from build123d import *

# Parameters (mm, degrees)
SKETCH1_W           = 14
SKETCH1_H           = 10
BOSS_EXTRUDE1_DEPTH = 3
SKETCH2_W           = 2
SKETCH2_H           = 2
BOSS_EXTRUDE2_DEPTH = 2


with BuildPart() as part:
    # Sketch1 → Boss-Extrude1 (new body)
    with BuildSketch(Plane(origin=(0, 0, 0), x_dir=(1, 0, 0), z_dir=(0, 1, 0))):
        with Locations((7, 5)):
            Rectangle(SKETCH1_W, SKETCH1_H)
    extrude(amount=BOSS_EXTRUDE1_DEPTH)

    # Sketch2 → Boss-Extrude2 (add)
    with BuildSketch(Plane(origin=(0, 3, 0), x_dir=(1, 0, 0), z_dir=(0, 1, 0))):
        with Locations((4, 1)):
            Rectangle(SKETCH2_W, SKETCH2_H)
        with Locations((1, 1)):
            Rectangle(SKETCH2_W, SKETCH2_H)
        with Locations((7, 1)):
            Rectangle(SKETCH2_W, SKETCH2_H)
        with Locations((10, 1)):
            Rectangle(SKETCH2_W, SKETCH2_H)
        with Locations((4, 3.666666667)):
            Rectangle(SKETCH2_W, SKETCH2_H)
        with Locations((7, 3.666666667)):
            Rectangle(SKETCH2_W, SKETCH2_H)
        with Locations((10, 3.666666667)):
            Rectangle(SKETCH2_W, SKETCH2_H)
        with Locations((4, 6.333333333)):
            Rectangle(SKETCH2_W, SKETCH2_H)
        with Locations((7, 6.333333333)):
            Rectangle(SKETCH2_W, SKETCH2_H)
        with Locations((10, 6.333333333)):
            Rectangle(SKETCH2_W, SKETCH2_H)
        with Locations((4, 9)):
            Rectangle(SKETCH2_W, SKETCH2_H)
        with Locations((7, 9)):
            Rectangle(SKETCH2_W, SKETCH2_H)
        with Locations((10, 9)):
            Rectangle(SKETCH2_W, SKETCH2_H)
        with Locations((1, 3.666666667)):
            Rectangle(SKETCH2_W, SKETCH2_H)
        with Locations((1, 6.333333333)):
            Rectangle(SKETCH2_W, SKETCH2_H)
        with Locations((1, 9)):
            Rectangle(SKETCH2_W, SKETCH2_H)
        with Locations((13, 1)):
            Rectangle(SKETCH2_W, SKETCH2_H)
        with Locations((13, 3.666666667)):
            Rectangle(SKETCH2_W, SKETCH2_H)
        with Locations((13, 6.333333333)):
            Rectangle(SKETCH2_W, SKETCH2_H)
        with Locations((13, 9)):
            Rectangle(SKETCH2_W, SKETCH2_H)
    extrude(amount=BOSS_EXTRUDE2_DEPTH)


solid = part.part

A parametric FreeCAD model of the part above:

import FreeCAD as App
import Part
import Sketcher
from FreeCAD import Vector

doc = App.newDocument("Part")
body = doc.addObject("PartDesign::Body", "Body")

# Sketch on XZ plane
sketch1 = body.newObject("Sketcher::SketchObject", "Sketch")
sketch1.AttachmentSupport = (doc.getObject("XZ_Plane"), [""])
sketch1.MapMode = "FlatFace"
sketch1.addGeometry(Part.LineSegment(Vector(0, -10, 0), Vector(0, 0, 0)), False)
sketch1.addGeometry(Part.LineSegment(Vector(0, 0, 0), Vector(14, 0, 0)), False)
sketch1.addGeometry(Part.LineSegment(Vector(14, 0, 0), Vector(14, -10, 0)), False)
sketch1.addGeometry(Part.LineSegment(Vector(14, -10, 0), Vector(0, -10, 0)), False)
sketch1.addConstraint(Sketcher.Constraint("Coincident", 0, 2, 1, 1))
sketch1.addConstraint(Sketcher.Constraint("Coincident", 1, 2, 2, 1))
sketch1.addConstraint(Sketcher.Constraint("Coincident", 2, 2, 3, 1))
sketch1.addConstraint(Sketcher.Constraint("Coincident", 3, 2, 0, 1))
sketch1.addConstraint(Sketcher.Constraint("Vertical", 0))
sketch1.addConstraint(Sketcher.Constraint("Horizontal", 1))
sketch1.addConstraint(Sketcher.Constraint("Vertical", 2))
sketch1.addConstraint(Sketcher.Constraint("Horizontal", 3))
sketch1.addConstraint(Sketcher.Constraint("Coincident", 0, 2, -1, 1))
sketch1.addConstraint(Sketcher.Constraint("DistanceX", 1, 1, 1, 2, 14.0))
sketch1.addConstraint(Sketcher.Constraint("DistanceY", 0, 1, 0, 2, 10.0))
pad1 = body.newObject("PartDesign::Pad", "Pad")
pad1.Profile = sketch1
pad1.Length = 3
pad1.Reversed = True

# Sketch on XZ plane
sketch2 = body.newObject("Sketcher::SketchObject", "Sketch001")
sketch2.AttachmentSupport = (doc.getObject("XZ_Plane"), [""])
sketch2.MapMode = "FlatFace"
sketch2.AttachmentOffset = App.Placement(Vector(0, 0, -3), App.Rotation())
sketch2.addGeometry(Part.LineSegment(Vector(3, -2, 0), Vector(3, 0, 0)), False)
sketch2.addGeometry(Part.LineSegment(Vector(3, 0, 0), Vector(5, 0, 0)), False)
sketch2.addGeometry(Part.LineSegment(Vector(5, 0, 0), Vector(5, -2, 0)), False)
sketch2.addGeometry(Part.LineSegment(Vector(5, -2, 0), Vector(3, -2, 0)), False)
sketch2.addGeometry(Part.LineSegment(Vector(0, -2, 0), Vector(0, 0, 0)), False)
sketch2.addGeometry(Part.LineSegment(Vector(0, 0, 0), Vector(2, 0, 0)), False)
sketch2.addGeometry(Part.LineSegment(Vector(2, 0, 0), Vector(2, -2, 0)), False)
sketch2.addGeometry(Part.LineSegment(Vector(2, -2, 0), Vector(0, -2, 0)), False)
sketch2.addGeometry(Part.LineSegment(Vector(6, -2, 0), Vector(6, 0, 0)), False)
sketch2.addGeometry(Part.LineSegment(Vector(6, 0, 0), Vector(8, 0, 0)), False)
sketch2.addGeometry(Part.LineSegment(Vector(8, 0, 0), Vector(8, -2, 0)), False)
sketch2.addGeometry(Part.LineSegment(Vector(8, -2, 0), Vector(6, -2, 0)), False)
sketch2.addGeometry(Part.LineSegment(Vector(9, -2, 0), Vector(9, 0, 0)), False)
sketch2.addGeometry(Part.LineSegment(Vector(9, 0, 0), Vector(11, 0, 0)), False)
sketch2.addGeometry(Part.LineSegment(Vector(11, 0, 0), Vector(11, -2, 0)), False)
sketch2.addGeometry(Part.LineSegment(Vector(11, -2, 0), Vector(9, -2, 0)), False)
sketch2.addGeometry(Part.LineSegment(Vector(3, -4.7, 0), Vector(3, -2.7, 0)), False)
sketch2.addGeometry(Part.LineSegment(Vector(3, -2.7, 0), Vector(5, -2.7, 0)), False)
sketch2.addGeometry(Part.LineSegment(Vector(5, -2.7, 0), Vector(5, -4.7, 0)), False)
sketch2.addGeometry(Part.LineSegment(Vector(5, -4.7, 0), Vector(3, -4.7, 0)), False)
sketch2.addGeometry(Part.LineSegment(Vector(6, -4.7, 0), Vector(6, -2.7, 0)), False)
sketch2.addGeometry(Part.LineSegment(Vector(6, -2.7, 0), Vector(8, -2.7, 0)), False)
sketch2.addGeometry(Part.LineSegment(Vector(8, -2.7, 0), Vector(8, -4.7, 0)), False)
sketch2.addGeometry(Part.LineSegment(Vector(8, -4.7, 0), Vector(6, -4.7, 0)), False)
sketch2.addGeometry(Part.LineSegment(Vector(9, -4.7, 0), Vector(9, -2.7, 0)), False)
sketch2.addGeometry(Part.LineSegment(Vector(9, -2.7, 0), Vector(11, -2.7, 0)), False)
sketch2.addGeometry(Part.LineSegment(Vector(11, -2.7, 0), Vector(11, -4.7, 0)), False)
sketch2.addGeometry(Part.LineSegment(Vector(11, -4.7, 0), Vector(9, -4.7, 0)), False)
sketch2.addGeometry(Part.LineSegment(Vector(3, -7.3, 0), Vector(3, -5.3, 0)), False)
sketch2.addGeometry(Part.LineSegment(Vector(3, -5.3, 0), Vector(5, -5.3, 0)), False)
sketch2.addGeometry(Part.LineSegment(Vector(5, -5.3, 0), Vector(5, -7.3, 0)), False)
sketch2.addGeometry(Part.LineSegment(Vector(5, -7.3, 0), Vector(3, -7.3, 0)), False)
sketch2.addGeometry(Part.LineSegment(Vector(6, -7.3, 0), Vector(6, -5.3, 0)), False)
sketch2.addGeometry(Part.LineSegment(Vector(6, -5.3, 0), Vector(8, -5.3, 0)), False)
sketch2.addGeometry(Part.LineSegment(Vector(8, -5.3, 0), Vector(8, -7.3, 0)), False)
sketch2.addGeometry(Part.LineSegment(Vector(8, -7.3, 0), Vector(6, -7.3, 0)), False)
sketch2.addGeometry(Part.LineSegment(Vector(9, -7.3, 0), Vector(9, -5.3, 0)), False)
sketch2.addGeometry(Part.LineSegment(Vector(9, -5.3, 0), Vector(11, -5.3, 0)), False)
sketch2.addGeometry(Part.LineSegment(Vector(11, -5.3, 0), Vector(11, -7.3, 0)), False)
sketch2.addGeometry(Part.LineSegment(Vector(11, -7.3, 0), Vector(9, -7.3, 0)), False)
sketch2.addGeometry(Part.LineSegment(Vector(3, -10, 0), Vector(3, -8, 0)), False)
sketch2.addGeometry(Part.LineSegment(Vector(3, -8, 0), Vector(5, -8, 0)), False)
sketch2.addGeometry(Part.LineSegment(Vector(5, -8, 0), Vector(5, -10, 0)), False)
sketch2.addGeometry(Part.LineSegment(Vector(5, -10, 0), Vector(3, -10, 0)), False)
sketch2.addGeometry(Part.LineSegment(Vector(6, -10, 0), Vector(6, -8, 0)), False)
sketch2.addGeometry(Part.LineSegment(Vector(6, -8, 0), Vector(8, -8, 0)), False)
sketch2.addGeometry(Part.LineSegment(Vector(8, -8, 0), Vector(8, -10, 0)), False)
sketch2.addGeometry(Part.LineSegment(Vector(8, -10, 0), Vector(6, -10, 0)), False)
sketch2.addGeometry(Part.LineSegment(Vector(9, -10, 0), Vector(9, -8, 0)), False)
sketch2.addGeometry(Part.LineSegment(Vector(9, -8, 0), Vector(11, -8, 0)), False)
sketch2.addGeometry(Part.LineSegment(Vector(11, -8, 0), Vector(11, -10, 0)), False)
sketch2.addGeometry(Part.LineSegment(Vector(11, -10, 0), Vector(9, -10, 0)), False)
sketch2.addGeometry(Part.LineSegment(Vector(0, -4.7, 0), Vector(0, -2.7, 0)), False)
sketch2.addGeometry(Part.LineSegment(Vector(0, -2.7, 0), Vector(2, -2.7, 0)), False)
sketch2.addGeometry(Part.LineSegment(Vector(2, -2.7, 0), Vector(2, -4.7, 0)), False)
sketch2.addGeometry(Part.LineSegment(Vector(2, -4.7, 0), Vector(0, -4.7, 0)), False)
sketch2.addGeometry(Part.LineSegment(Vector(0, -7.3, 0), Vector(0, -5.3, 0)), False)
sketch2.addGeometry(Part.LineSegment(Vector(0, -5.3, 0), Vector(2, -5.3, 0)), False)
sketch2.addGeometry(Part.LineSegment(Vector(2, -5.3, 0), Vector(2, -7.3, 0)), False)
sketch2.addGeometry(Part.LineSegment(Vector(2, -7.3, 0), Vector(0, -7.3, 0)), False)
sketch2.addGeometry(Part.LineSegment(Vector(0, -10, 0), Vector(0, -8, 0)), False)
sketch2.addGeometry(Part.LineSegment(Vector(0, -8, 0), Vector(2, -8, 0)), False)
sketch2.addGeometry(Part.LineSegment(Vector(2, -8, 0), Vector(2, -10, 0)), False)
sketch2.addGeometry(Part.LineSegment(Vector(2, -10, 0), Vector(0, -10, 0)), False)
sketch2.addGeometry(Part.LineSegment(Vector(12, -2, 0), Vector(12, 0, 0)), False)
sketch2.addGeometry(Part.LineSegment(Vector(12, 0, 0), Vector(14, 0, 0)), False)
sketch2.addGeometry(Part.LineSegment(Vector(14, 0, 0), Vector(14, -2, 0)), False)
sketch2.addGeometry(Part.LineSegment(Vector(14, -2, 0), Vector(12, -2, 0)), False)
sketch2.addGeometry(Part.LineSegment(Vector(12, -4.7, 0), Vector(12, -2.7, 0)), False)
sketch2.addGeometry(Part.LineSegment(Vector(12, -2.7, 0), Vector(14, -2.7, 0)), False)
sketch2.addGeometry(Part.LineSegment(Vector(14, -2.7, 0), Vector(14, -4.7, 0)), False)
sketch2.addGeometry(Part.LineSegment(Vector(14, -4.7, 0), Vector(12, -4.7, 0)), False)
sketch2.addGeometry(Part.LineSegment(Vector(12, -7.3, 0), Vector(12, -5.3, 0)), False)
sketch2.addGeometry(Part.LineSegment(Vector(12, -5.3, 0), Vector(14, -5.3, 0)), False)
sketch2.addGeometry(Part.LineSegment(Vector(14, -5.3, 0), Vector(14, -7.3, 0)), False)
sketch2.addGeometry(Part.LineSegment(Vector(14, -7.3, 0), Vector(12, -7.3, 0)), False)
sketch2.addGeometry(Part.LineSegment(Vector(12, -10, 0), Vector(12, -8, 0)), False)
sketch2.addGeometry(Part.LineSegment(Vector(12, -8, 0), Vector(14, -8, 0)), False)
sketch2.addGeometry(Part.LineSegment(Vector(14, -8, 0), Vector(14, -10, 0)), False)
sketch2.addGeometry(Part.LineSegment(Vector(14, -10, 0), Vector(12, -10, 0)), False)
sketch2.addConstraint(Sketcher.Constraint("Coincident", 0, 2, 1, 1))
sketch2.addConstraint(Sketcher.Constraint("Coincident", 1, 2, 2, 1))
sketch2.addConstraint(Sketcher.Constraint("Coincident", 2, 2, 3, 1))
sketch2.addConstraint(Sketcher.Constraint("Coincident", 3, 2, 0, 1))
sketch2.addConstraint(Sketcher.Constraint("Coincident", 4, 2, 5, 1))
sketch2.addConstraint(Sketcher.Constraint("Coincident", 5, 2, 6, 1))
sketch2.addConstraint(Sketcher.Constraint("Coincident", 6, 2, 7, 1))
sketch2.addConstraint(Sketcher.Constraint("Coincident", 7, 2, 4, 1))
sketch2.addConstraint(Sketcher.Constraint("Coincident", 8, 2, 9, 1))
sketch2.addConstraint(Sketcher.Constraint("Coincident", 9, 2, 10, 1))
sketch2.addConstraint(Sketcher.Constraint("Coincident", 10, 2, 11, 1))
sketch2.addConstraint(Sketcher.Constraint("Coincident", 11, 2, 8, 1))
sketch2.addConstraint(Sketcher.Constraint("Coincident", 12, 2, 13, 1))
sketch2.addConstraint(Sketcher.Constraint("Coincident", 13, 2, 14, 1))
sketch2.addConstraint(Sketcher.Constraint("Coincident", 14, 2, 15, 1))
sketch2.addConstraint(Sketcher.Constraint("Coincident", 15, 2, 12, 1))
sketch2.addConstraint(Sketcher.Constraint("Coincident", 16, 2, 17, 1))
sketch2.addConstraint(Sketcher.Constraint("Coincident", 17, 2, 18, 1))
sketch2.addConstraint(Sketcher.Constraint("Coincident", 18, 2, 19, 1))
sketch2.addConstraint(Sketcher.Constraint("Coincident", 19, 2, 16, 1))
sketch2.addConstraint(Sketcher.Constraint("Coincident", 20, 2, 21, 1))
sketch2.addConstraint(Sketcher.Constraint("Coincident", 21, 2, 22, 1))
sketch2.addConstraint(Sketcher.Constraint("Coincident", 22, 2, 23, 1))
sketch2.addConstraint(Sketcher.Constraint("Coincident", 23, 2, 20, 1))
sketch2.addConstraint(Sketcher.Constraint("Coincident", 24, 2, 25, 1))
sketch2.addConstraint(Sketcher.Constraint("Coincident", 25, 2, 26, 1))
sketch2.addConstraint(Sketcher.Constraint("Coincident", 26, 2, 27, 1))
sketch2.addConstraint(Sketcher.Constraint("Coincident", 27, 2, 24, 1))
sketch2.addConstraint(Sketcher.Constraint("Coincident", 28, 2, 29, 1))
sketch2.addConstraint(Sketcher.Constraint("Coincident", 29, 2, 30, 1))
sketch2.addConstraint(Sketcher.Constraint("Coincident", 30, 2, 31, 1))
sketch2.addConstraint(Sketcher.Constraint("Coincident", 31, 2, 28, 1))
sketch2.addConstraint(Sketcher.Constraint("Coincident", 32, 2, 33, 1))
sketch2.addConstraint(Sketcher.Constraint("Coincident", 33, 2, 34, 1))
sketch2.addConstraint(Sketcher.Constraint("Coincident", 34, 2, 35, 1))
sketch2.addConstraint(Sketcher.Constraint("Coincident", 35, 2, 32, 1))
sketch2.addConstraint(Sketcher.Constraint("Coincident", 36, 2, 37, 1))
sketch2.addConstraint(Sketcher.Constraint("Coincident", 37, 2, 38, 1))
sketch2.addConstraint(Sketcher.Constraint("Coincident", 38, 2, 39, 1))
sketch2.addConstraint(Sketcher.Constraint("Coincident", 39, 2, 36, 1))
sketch2.addConstraint(Sketcher.Constraint("Coincident", 40, 2, 41, 1))
sketch2.addConstraint(Sketcher.Constraint("Coincident", 41, 2, 42, 1))
sketch2.addConstraint(Sketcher.Constraint("Coincident", 42, 2, 43, 1))
sketch2.addConstraint(Sketcher.Constraint("Coincident", 43, 2, 40, 1))
sketch2.addConstraint(Sketcher.Constraint("Coincident", 44, 2, 45, 1))
sketch2.addConstraint(Sketcher.Constraint("Coincident", 45, 2, 46, 1))
sketch2.addConstraint(Sketcher.Constraint("Coincident", 46, 2, 47, 1))
sketch2.addConstraint(Sketcher.Constraint("Coincident", 47, 2, 44, 1))
sketch2.addConstraint(Sketcher.Constraint("Coincident", 48, 2, 49, 1))
sketch2.addConstraint(Sketcher.Constraint("Coincident", 49, 2, 50, 1))
sketch2.addConstraint(Sketcher.Constraint("Coincident", 50, 2, 51, 1))
sketch2.addConstraint(Sketcher.Constraint("Coincident", 51, 2, 48, 1))
sketch2.addConstraint(Sketcher.Constraint("Coincident", 52, 2, 53, 1))
sketch2.addConstraint(Sketcher.Constraint("Coincident", 53, 2, 54, 1))
sketch2.addConstraint(Sketcher.Constraint("Coincident", 54, 2, 55, 1))
sketch2.addConstraint(Sketcher.Constraint("Coincident", 55, 2, 52, 1))
sketch2.addConstraint(Sketcher.Constraint("Coincident", 56, 2, 57, 1))
sketch2.addConstraint(Sketcher.Constraint("Coincident", 57, 2, 58, 1))
sketch2.addConstraint(Sketcher.Constraint("Coincident", 58, 2, 59, 1))
sketch2.addConstraint(Sketcher.Constraint("Coincident", 59, 2, 56, 1))
sketch2.addConstraint(Sketcher.Constraint("Coincident", 60, 2, 61, 1))
sketch2.addConstraint(Sketcher.Constraint("Coincident", 61, 2, 62, 1))
sketch2.addConstraint(Sketcher.Constraint("Coincident", 62, 2, 63, 1))
sketch2.addConstraint(Sketcher.Constraint("Coincident", 63, 2, 60, 1))
sketch2.addConstraint(Sketcher.Constraint("Coincident", 64, 2, 65, 1))
sketch2.addConstraint(Sketcher.Constraint("Coincident", 65, 2, 66, 1))
sketch2.addConstraint(Sketcher.Constraint("Coincident", 66, 2, 67, 1))
sketch2.addConstraint(Sketcher.Constraint("Coincident", 67, 2, 64, 1))
sketch2.addConstraint(Sketcher.Constraint("Coincident", 68, 2, 69, 1))
sketch2.addConstraint(Sketcher.Constraint("Coincident", 69, 2, 70, 1))
sketch2.addConstraint(Sketcher.Constraint("Coincident", 70, 2, 71, 1))
sketch2.addConstraint(Sketcher.Constraint("Coincident", 71, 2, 68, 1))
sketch2.addConstraint(Sketcher.Constraint("Coincident", 72, 2, 73, 1))
sketch2.addConstraint(Sketcher.Constraint("Coincident", 73, 2, 74, 1))
sketch2.addConstraint(Sketcher.Constraint("Coincident", 74, 2, 75, 1))
sketch2.addConstraint(Sketcher.Constraint("Coincident", 75, 2, 72, 1))
sketch2.addConstraint(Sketcher.Constraint("Coincident", 76, 2, 77, 1))
sketch2.addConstraint(Sketcher.Constraint("Coincident", 77, 2, 78, 1))
sketch2.addConstraint(Sketcher.Constraint("Coincident", 78, 2, 79, 1))
sketch2.addConstraint(Sketcher.Constraint("Coincident", 79, 2, 76, 1))
sketch2.addConstraint(Sketcher.Constraint("Vertical", 0))
sketch2.addConstraint(Sketcher.Constraint("Horizontal", 1))
sketch2.addConstraint(Sketcher.Constraint("Vertical", 2))
sketch2.addConstraint(Sketcher.Constraint("Horizontal", 3))
sketch2.addConstraint(Sketcher.Constraint("Vertical", 4))
sketch2.addConstraint(Sketcher.Constraint("Horizontal", 5))
sketch2.addConstraint(Sketcher.Constraint("Vertical", 6))
sketch2.addConstraint(Sketcher.Constraint("Horizontal", 7))
sketch2.addConstraint(Sketcher.Constraint("Vertical", 8))
sketch2.addConstraint(Sketcher.Constraint("Horizontal", 9))
sketch2.addConstraint(Sketcher.Constraint("Vertical", 10))
sketch2.addConstraint(Sketcher.Constraint("Horizontal", 11))
sketch2.addConstraint(Sketcher.Constraint("Vertical", 12))
sketch2.addConstraint(Sketcher.Constraint("Horizontal", 13))
sketch2.addConstraint(Sketcher.Constraint("Vertical", 14))
sketch2.addConstraint(Sketcher.Constraint("Horizontal", 15))
sketch2.addConstraint(Sketcher.Constraint("Vertical", 16))
sketch2.addConstraint(Sketcher.Constraint("Horizontal", 17))
sketch2.addConstraint(Sketcher.Constraint("Vertical", 18))
sketch2.addConstraint(Sketcher.Constraint("Horizontal", 19))
sketch2.addConstraint(Sketcher.Constraint("Vertical", 20))
sketch2.addConstraint(Sketcher.Constraint("Horizontal", 21))
sketch2.addConstraint(Sketcher.Constraint("Vertical", 22))
sketch2.addConstraint(Sketcher.Constraint("Horizontal", 23))
sketch2.addConstraint(Sketcher.Constraint("Vertical", 24))
sketch2.addConstraint(Sketcher.Constraint("Horizontal", 25))
sketch2.addConstraint(Sketcher.Constraint("Vertical", 26))
sketch2.addConstraint(Sketcher.Constraint("Horizontal", 27))
sketch2.addConstraint(Sketcher.Constraint("Vertical", 28))
sketch2.addConstraint(Sketcher.Constraint("Horizontal", 29))
sketch2.addConstraint(Sketcher.Constraint("Vertical", 30))
sketch2.addConstraint(Sketcher.Constraint("Horizontal", 31))
sketch2.addConstraint(Sketcher.Constraint("Vertical", 32))
sketch2.addConstraint(Sketcher.Constraint("Horizontal", 33))
sketch2.addConstraint(Sketcher.Constraint("Vertical", 34))
sketch2.addConstraint(Sketcher.Constraint("Horizontal", 35))
sketch2.addConstraint(Sketcher.Constraint("Vertical", 36))
sketch2.addConstraint(Sketcher.Constraint("Horizontal", 37))
sketch2.addConstraint(Sketcher.Constraint("Vertical", 38))
sketch2.addConstraint(Sketcher.Constraint("Horizontal", 39))
sketch2.addConstraint(Sketcher.Constraint("Vertical", 40))
sketch2.addConstraint(Sketcher.Constraint("Horizontal", 41))
sketch2.addConstraint(Sketcher.Constraint("Vertical", 42))
sketch2.addConstraint(Sketcher.Constraint("Horizontal", 43))
sketch2.addConstraint(Sketcher.Constraint("Vertical", 44))
sketch2.addConstraint(Sketcher.Constraint("Horizontal", 45))
sketch2.addConstraint(Sketcher.Constraint("Vertical", 46))
sketch2.addConstraint(Sketcher.Constraint("Horizontal", 47))
sketch2.addConstraint(Sketcher.Constraint("Vertical", 48))
sketch2.addConstraint(Sketcher.Constraint("Horizontal", 49))
sketch2.addConstraint(Sketcher.Constraint("Vertical", 50))
sketch2.addConstraint(Sketcher.Constraint("Horizontal", 51))
sketch2.addConstraint(Sketcher.Constraint("Vertical", 52))
sketch2.addConstraint(Sketcher.Constraint("Horizontal", 53))
sketch2.addConstraint(Sketcher.Constraint("Vertical", 54))
sketch2.addConstraint(Sketcher.Constraint("Horizontal", 55))
sketch2.addConstraint(Sketcher.Constraint("Vertical", 56))
sketch2.addConstraint(Sketcher.Constraint("Horizontal", 57))
sketch2.addConstraint(Sketcher.Constraint("Vertical", 58))
sketch2.addConstraint(Sketcher.Constraint("Horizontal", 59))
sketch2.addConstraint(Sketcher.Constraint("Vertical", 60))
sketch2.addConstraint(Sketcher.Constraint("Horizontal", 61))
sketch2.addConstraint(Sketcher.Constraint("Vertical", 62))
sketch2.addConstraint(Sketcher.Constraint("Horizontal", 63))
sketch2.addConstraint(Sketcher.Constraint("Vertical", 64))
sketch2.addConstraint(Sketcher.Constraint("Horizontal", 65))
sketch2.addConstraint(Sketcher.Constraint("Vertical", 66))
sketch2.addConstraint(Sketcher.Constraint("Horizontal", 67))
sketch2.addConstraint(Sketcher.Constraint("Vertical", 68))
sketch2.addConstraint(Sketcher.Constraint("Horizontal", 69))
sketch2.addConstraint(Sketcher.Constraint("Vertical", 70))
sketch2.addConstraint(Sketcher.Constraint("Horizontal", 71))
sketch2.addConstraint(Sketcher.Constraint("Vertical", 72))
sketch2.addConstraint(Sketcher.Constraint("Horizontal", 73))
sketch2.addConstraint(Sketcher.Constraint("Vertical", 74))
sketch2.addConstraint(Sketcher.Constraint("Horizontal", 75))
sketch2.addConstraint(Sketcher.Constraint("Vertical", 76))
sketch2.addConstraint(Sketcher.Constraint("Horizontal", 77))
sketch2.addConstraint(Sketcher.Constraint("Vertical", 78))
sketch2.addConstraint(Sketcher.Constraint("Horizontal", 79))
sketch2.addConstraint(Sketcher.Constraint("Coincident", 4, 2, -1, 1))
sketch2.addConstraint(Sketcher.Constraint("PointOnObject", 0, 2, -1))
sketch2.addConstraint(Sketcher.Constraint("PointOnObject", 8, 2, -1))
sketch2.addConstraint(Sketcher.Constraint("PointOnObject", 12, 2, -1))
sketch2.addConstraint(Sketcher.Constraint("PointOnObject", 52, 2, -2))
sketch2.addConstraint(Sketcher.Constraint("PointOnObject", 56, 2, -2))
sketch2.addConstraint(Sketcher.Constraint("PointOnObject", 60, 2, -2))
sketch2.addConstraint(Sketcher.Constraint("PointOnObject", 64, 2, -1))
sketch2.addConstraint(Sketcher.Constraint("Horizontal", 3, 2, 6, 2))
sketch2.addConstraint(Sketcher.Constraint("Horizontal", 7, 2, 10, 2))
sketch2.addConstraint(Sketcher.Constraint("Horizontal", 11, 2, 14, 2))
sketch2.addConstraint(Sketcher.Constraint("Horizontal", 17, 2, 20, 2))
sketch2.addConstraint(Sketcher.Constraint("Horizontal", 19, 2, 22, 2))
sketch2.addConstraint(Sketcher.Constraint("Horizontal", 21, 2, 24, 2))
sketch2.addConstraint(Sketcher.Constraint("Horizontal", 23, 2, 26, 2))
sketch2.addConstraint(Sketcher.Constraint("Horizontal", 29, 2, 32, 2))
sketch2.addConstraint(Sketcher.Constraint("Horizontal", 31, 2, 34, 2))
sketch2.addConstraint(Sketcher.Constraint("Horizontal", 33, 2, 36, 2))
sketch2.addConstraint(Sketcher.Constraint("Horizontal", 35, 2, 38, 2))
sketch2.addConstraint(Sketcher.Constraint("Horizontal", 41, 2, 44, 2))
sketch2.addConstraint(Sketcher.Constraint("Horizontal", 43, 2, 46, 2))
sketch2.addConstraint(Sketcher.Constraint("Horizontal", 45, 2, 48, 2))
sketch2.addConstraint(Sketcher.Constraint("Horizontal", 47, 2, 50, 2))
sketch2.addConstraint(Sketcher.Constraint("Horizontal", 25, 2, 52, 2))
sketch2.addConstraint(Sketcher.Constraint("Horizontal", 27, 2, 54, 2))
sketch2.addConstraint(Sketcher.Constraint("Horizontal", 37, 2, 56, 2))
sketch2.addConstraint(Sketcher.Constraint("Horizontal", 39, 2, 58, 2))
sketch2.addConstraint(Sketcher.Constraint("Horizontal", 49, 2, 60, 2))
sketch2.addConstraint(Sketcher.Constraint("Horizontal", 51, 2, 62, 2))
sketch2.addConstraint(Sketcher.Constraint("Horizontal", 15, 2, 66, 2))
sketch2.addConstraint(Sketcher.Constraint("Horizontal", 53, 2, 68, 2))
sketch2.addConstraint(Sketcher.Constraint("Horizontal", 55, 2, 70, 2))
sketch2.addConstraint(Sketcher.Constraint("Horizontal", 57, 2, 72, 2))
sketch2.addConstraint(Sketcher.Constraint("Horizontal", 59, 2, 74, 2))
sketch2.addConstraint(Sketcher.Constraint("Horizontal", 61, 2, 76, 2))
sketch2.addConstraint(Sketcher.Constraint("Horizontal", 63, 2, 78, 2))
sketch2.addConstraint(Sketcher.Constraint("Vertical", 3, 2, 16, 2))
sketch2.addConstraint(Sketcher.Constraint("Vertical", 2, 2, 17, 2))
sketch2.addConstraint(Sketcher.Constraint("Vertical", 11, 2, 20, 2))
sketch2.addConstraint(Sketcher.Constraint("Vertical", 10, 2, 21, 2))
sketch2.addConstraint(Sketcher.Constraint("Vertical", 15, 2, 24, 2))
sketch2.addConstraint(Sketcher.Constraint("Vertical", 14, 2, 25, 2))
sketch2.addConstraint(Sketcher.Constraint("Vertical", 19, 2, 28, 2))
sketch2.addConstraint(Sketcher.Constraint("Vertical", 18, 2, 29, 2))
sketch2.addConstraint(Sketcher.Constraint("Vertical", 23, 2, 32, 2))
sketch2.addConstraint(Sketcher.Constraint("Vertical", 22, 2, 33, 2))
sketch2.addConstraint(Sketcher.Constraint("Vertical", 27, 2, 36, 2))
sketch2.addConstraint(Sketcher.Constraint("Vertical", 26, 2, 37, 2))
sketch2.addConstraint(Sketcher.Constraint("Vertical", 31, 2, 40, 2))
sketch2.addConstraint(Sketcher.Constraint("Vertical", 30, 2, 41, 2))
sketch2.addConstraint(Sketcher.Constraint("Vertical", 35, 2, 44, 2))
sketch2.addConstraint(Sketcher.Constraint("Vertical", 34, 2, 45, 2))
sketch2.addConstraint(Sketcher.Constraint("Vertical", 39, 2, 48, 2))
sketch2.addConstraint(Sketcher.Constraint("Vertical", 38, 2, 49, 2))
sketch2.addConstraint(Sketcher.Constraint("Vertical", 6, 2, 53, 2))
sketch2.addConstraint(Sketcher.Constraint("Vertical", 54, 2, 57, 2))
sketch2.addConstraint(Sketcher.Constraint("Vertical", 58, 2, 61, 2))
sketch2.addConstraint(Sketcher.Constraint("Vertical", 67, 2, 68, 2))
sketch2.addConstraint(Sketcher.Constraint("Vertical", 66, 2, 69, 2))
sketch2.addConstraint(Sketcher.Constraint("Vertical", 71, 2, 72, 2))
sketch2.addConstraint(Sketcher.Constraint("Vertical", 70, 2, 73, 2))
sketch2.addConstraint(Sketcher.Constraint("Vertical", 75, 2, 76, 2))
sketch2.addConstraint(Sketcher.Constraint("Vertical", 74, 2, 77, 2))
sketch2.addConstraint(Sketcher.Constraint("Equal", 3, 5))
sketch2.addConstraint(Sketcher.Constraint("Equal", 7, 9))
sketch2.addConstraint(Sketcher.Constraint("Equal", 11, 13))
sketch2.addConstraint(Sketcher.Constraint("Equal", 63, 65))
sketch2.addConstraint(Sketcher.Constraint("Equal", 79, 0))
sketch2.addConstraint(Sketcher.Constraint("Equal", 14, 16))
sketch2.addConstraint(Sketcher.Constraint("Equal", 26, 28))
sketch2.addConstraint(Sketcher.Constraint("Equal", 38, 40))
sketch2.addConstraint(Sketcher.Constraint("DistanceX", 1, 1, 1, 2, 2.0))
sketch2.addConstraint(Sketcher.Constraint("DistanceX", -1, 1, 0, 2, 3.0))
sketch2.addConstraint(Sketcher.Constraint("DistanceX", -1, 1, 8, 2, 6.0))
sketch2.addConstraint(Sketcher.Constraint("DistanceX", -1, 1, 12, 2, 9.0))
sketch2.addConstraint(Sketcher.Constraint("DistanceY", 40, 2, -1, 1, 8.0))
sketch2.addConstraint(Sketcher.Constraint("DistanceX", -1, 1, 64, 2, 12.0))
sketch2.addConstraint(Sketcher.Constraint("DistanceY", 16, 2, -1, 1, 2.666667))
sketch2.addConstraint(Sketcher.Constraint("DistanceY", 28, 2, -1, 1, 5.333333))
pad2 = body.newObject("PartDesign::Pad", "Pad001")
pad2.Profile = sketch2
pad2.Length = 2
pad2.Reversed = True

doc.recompute()
